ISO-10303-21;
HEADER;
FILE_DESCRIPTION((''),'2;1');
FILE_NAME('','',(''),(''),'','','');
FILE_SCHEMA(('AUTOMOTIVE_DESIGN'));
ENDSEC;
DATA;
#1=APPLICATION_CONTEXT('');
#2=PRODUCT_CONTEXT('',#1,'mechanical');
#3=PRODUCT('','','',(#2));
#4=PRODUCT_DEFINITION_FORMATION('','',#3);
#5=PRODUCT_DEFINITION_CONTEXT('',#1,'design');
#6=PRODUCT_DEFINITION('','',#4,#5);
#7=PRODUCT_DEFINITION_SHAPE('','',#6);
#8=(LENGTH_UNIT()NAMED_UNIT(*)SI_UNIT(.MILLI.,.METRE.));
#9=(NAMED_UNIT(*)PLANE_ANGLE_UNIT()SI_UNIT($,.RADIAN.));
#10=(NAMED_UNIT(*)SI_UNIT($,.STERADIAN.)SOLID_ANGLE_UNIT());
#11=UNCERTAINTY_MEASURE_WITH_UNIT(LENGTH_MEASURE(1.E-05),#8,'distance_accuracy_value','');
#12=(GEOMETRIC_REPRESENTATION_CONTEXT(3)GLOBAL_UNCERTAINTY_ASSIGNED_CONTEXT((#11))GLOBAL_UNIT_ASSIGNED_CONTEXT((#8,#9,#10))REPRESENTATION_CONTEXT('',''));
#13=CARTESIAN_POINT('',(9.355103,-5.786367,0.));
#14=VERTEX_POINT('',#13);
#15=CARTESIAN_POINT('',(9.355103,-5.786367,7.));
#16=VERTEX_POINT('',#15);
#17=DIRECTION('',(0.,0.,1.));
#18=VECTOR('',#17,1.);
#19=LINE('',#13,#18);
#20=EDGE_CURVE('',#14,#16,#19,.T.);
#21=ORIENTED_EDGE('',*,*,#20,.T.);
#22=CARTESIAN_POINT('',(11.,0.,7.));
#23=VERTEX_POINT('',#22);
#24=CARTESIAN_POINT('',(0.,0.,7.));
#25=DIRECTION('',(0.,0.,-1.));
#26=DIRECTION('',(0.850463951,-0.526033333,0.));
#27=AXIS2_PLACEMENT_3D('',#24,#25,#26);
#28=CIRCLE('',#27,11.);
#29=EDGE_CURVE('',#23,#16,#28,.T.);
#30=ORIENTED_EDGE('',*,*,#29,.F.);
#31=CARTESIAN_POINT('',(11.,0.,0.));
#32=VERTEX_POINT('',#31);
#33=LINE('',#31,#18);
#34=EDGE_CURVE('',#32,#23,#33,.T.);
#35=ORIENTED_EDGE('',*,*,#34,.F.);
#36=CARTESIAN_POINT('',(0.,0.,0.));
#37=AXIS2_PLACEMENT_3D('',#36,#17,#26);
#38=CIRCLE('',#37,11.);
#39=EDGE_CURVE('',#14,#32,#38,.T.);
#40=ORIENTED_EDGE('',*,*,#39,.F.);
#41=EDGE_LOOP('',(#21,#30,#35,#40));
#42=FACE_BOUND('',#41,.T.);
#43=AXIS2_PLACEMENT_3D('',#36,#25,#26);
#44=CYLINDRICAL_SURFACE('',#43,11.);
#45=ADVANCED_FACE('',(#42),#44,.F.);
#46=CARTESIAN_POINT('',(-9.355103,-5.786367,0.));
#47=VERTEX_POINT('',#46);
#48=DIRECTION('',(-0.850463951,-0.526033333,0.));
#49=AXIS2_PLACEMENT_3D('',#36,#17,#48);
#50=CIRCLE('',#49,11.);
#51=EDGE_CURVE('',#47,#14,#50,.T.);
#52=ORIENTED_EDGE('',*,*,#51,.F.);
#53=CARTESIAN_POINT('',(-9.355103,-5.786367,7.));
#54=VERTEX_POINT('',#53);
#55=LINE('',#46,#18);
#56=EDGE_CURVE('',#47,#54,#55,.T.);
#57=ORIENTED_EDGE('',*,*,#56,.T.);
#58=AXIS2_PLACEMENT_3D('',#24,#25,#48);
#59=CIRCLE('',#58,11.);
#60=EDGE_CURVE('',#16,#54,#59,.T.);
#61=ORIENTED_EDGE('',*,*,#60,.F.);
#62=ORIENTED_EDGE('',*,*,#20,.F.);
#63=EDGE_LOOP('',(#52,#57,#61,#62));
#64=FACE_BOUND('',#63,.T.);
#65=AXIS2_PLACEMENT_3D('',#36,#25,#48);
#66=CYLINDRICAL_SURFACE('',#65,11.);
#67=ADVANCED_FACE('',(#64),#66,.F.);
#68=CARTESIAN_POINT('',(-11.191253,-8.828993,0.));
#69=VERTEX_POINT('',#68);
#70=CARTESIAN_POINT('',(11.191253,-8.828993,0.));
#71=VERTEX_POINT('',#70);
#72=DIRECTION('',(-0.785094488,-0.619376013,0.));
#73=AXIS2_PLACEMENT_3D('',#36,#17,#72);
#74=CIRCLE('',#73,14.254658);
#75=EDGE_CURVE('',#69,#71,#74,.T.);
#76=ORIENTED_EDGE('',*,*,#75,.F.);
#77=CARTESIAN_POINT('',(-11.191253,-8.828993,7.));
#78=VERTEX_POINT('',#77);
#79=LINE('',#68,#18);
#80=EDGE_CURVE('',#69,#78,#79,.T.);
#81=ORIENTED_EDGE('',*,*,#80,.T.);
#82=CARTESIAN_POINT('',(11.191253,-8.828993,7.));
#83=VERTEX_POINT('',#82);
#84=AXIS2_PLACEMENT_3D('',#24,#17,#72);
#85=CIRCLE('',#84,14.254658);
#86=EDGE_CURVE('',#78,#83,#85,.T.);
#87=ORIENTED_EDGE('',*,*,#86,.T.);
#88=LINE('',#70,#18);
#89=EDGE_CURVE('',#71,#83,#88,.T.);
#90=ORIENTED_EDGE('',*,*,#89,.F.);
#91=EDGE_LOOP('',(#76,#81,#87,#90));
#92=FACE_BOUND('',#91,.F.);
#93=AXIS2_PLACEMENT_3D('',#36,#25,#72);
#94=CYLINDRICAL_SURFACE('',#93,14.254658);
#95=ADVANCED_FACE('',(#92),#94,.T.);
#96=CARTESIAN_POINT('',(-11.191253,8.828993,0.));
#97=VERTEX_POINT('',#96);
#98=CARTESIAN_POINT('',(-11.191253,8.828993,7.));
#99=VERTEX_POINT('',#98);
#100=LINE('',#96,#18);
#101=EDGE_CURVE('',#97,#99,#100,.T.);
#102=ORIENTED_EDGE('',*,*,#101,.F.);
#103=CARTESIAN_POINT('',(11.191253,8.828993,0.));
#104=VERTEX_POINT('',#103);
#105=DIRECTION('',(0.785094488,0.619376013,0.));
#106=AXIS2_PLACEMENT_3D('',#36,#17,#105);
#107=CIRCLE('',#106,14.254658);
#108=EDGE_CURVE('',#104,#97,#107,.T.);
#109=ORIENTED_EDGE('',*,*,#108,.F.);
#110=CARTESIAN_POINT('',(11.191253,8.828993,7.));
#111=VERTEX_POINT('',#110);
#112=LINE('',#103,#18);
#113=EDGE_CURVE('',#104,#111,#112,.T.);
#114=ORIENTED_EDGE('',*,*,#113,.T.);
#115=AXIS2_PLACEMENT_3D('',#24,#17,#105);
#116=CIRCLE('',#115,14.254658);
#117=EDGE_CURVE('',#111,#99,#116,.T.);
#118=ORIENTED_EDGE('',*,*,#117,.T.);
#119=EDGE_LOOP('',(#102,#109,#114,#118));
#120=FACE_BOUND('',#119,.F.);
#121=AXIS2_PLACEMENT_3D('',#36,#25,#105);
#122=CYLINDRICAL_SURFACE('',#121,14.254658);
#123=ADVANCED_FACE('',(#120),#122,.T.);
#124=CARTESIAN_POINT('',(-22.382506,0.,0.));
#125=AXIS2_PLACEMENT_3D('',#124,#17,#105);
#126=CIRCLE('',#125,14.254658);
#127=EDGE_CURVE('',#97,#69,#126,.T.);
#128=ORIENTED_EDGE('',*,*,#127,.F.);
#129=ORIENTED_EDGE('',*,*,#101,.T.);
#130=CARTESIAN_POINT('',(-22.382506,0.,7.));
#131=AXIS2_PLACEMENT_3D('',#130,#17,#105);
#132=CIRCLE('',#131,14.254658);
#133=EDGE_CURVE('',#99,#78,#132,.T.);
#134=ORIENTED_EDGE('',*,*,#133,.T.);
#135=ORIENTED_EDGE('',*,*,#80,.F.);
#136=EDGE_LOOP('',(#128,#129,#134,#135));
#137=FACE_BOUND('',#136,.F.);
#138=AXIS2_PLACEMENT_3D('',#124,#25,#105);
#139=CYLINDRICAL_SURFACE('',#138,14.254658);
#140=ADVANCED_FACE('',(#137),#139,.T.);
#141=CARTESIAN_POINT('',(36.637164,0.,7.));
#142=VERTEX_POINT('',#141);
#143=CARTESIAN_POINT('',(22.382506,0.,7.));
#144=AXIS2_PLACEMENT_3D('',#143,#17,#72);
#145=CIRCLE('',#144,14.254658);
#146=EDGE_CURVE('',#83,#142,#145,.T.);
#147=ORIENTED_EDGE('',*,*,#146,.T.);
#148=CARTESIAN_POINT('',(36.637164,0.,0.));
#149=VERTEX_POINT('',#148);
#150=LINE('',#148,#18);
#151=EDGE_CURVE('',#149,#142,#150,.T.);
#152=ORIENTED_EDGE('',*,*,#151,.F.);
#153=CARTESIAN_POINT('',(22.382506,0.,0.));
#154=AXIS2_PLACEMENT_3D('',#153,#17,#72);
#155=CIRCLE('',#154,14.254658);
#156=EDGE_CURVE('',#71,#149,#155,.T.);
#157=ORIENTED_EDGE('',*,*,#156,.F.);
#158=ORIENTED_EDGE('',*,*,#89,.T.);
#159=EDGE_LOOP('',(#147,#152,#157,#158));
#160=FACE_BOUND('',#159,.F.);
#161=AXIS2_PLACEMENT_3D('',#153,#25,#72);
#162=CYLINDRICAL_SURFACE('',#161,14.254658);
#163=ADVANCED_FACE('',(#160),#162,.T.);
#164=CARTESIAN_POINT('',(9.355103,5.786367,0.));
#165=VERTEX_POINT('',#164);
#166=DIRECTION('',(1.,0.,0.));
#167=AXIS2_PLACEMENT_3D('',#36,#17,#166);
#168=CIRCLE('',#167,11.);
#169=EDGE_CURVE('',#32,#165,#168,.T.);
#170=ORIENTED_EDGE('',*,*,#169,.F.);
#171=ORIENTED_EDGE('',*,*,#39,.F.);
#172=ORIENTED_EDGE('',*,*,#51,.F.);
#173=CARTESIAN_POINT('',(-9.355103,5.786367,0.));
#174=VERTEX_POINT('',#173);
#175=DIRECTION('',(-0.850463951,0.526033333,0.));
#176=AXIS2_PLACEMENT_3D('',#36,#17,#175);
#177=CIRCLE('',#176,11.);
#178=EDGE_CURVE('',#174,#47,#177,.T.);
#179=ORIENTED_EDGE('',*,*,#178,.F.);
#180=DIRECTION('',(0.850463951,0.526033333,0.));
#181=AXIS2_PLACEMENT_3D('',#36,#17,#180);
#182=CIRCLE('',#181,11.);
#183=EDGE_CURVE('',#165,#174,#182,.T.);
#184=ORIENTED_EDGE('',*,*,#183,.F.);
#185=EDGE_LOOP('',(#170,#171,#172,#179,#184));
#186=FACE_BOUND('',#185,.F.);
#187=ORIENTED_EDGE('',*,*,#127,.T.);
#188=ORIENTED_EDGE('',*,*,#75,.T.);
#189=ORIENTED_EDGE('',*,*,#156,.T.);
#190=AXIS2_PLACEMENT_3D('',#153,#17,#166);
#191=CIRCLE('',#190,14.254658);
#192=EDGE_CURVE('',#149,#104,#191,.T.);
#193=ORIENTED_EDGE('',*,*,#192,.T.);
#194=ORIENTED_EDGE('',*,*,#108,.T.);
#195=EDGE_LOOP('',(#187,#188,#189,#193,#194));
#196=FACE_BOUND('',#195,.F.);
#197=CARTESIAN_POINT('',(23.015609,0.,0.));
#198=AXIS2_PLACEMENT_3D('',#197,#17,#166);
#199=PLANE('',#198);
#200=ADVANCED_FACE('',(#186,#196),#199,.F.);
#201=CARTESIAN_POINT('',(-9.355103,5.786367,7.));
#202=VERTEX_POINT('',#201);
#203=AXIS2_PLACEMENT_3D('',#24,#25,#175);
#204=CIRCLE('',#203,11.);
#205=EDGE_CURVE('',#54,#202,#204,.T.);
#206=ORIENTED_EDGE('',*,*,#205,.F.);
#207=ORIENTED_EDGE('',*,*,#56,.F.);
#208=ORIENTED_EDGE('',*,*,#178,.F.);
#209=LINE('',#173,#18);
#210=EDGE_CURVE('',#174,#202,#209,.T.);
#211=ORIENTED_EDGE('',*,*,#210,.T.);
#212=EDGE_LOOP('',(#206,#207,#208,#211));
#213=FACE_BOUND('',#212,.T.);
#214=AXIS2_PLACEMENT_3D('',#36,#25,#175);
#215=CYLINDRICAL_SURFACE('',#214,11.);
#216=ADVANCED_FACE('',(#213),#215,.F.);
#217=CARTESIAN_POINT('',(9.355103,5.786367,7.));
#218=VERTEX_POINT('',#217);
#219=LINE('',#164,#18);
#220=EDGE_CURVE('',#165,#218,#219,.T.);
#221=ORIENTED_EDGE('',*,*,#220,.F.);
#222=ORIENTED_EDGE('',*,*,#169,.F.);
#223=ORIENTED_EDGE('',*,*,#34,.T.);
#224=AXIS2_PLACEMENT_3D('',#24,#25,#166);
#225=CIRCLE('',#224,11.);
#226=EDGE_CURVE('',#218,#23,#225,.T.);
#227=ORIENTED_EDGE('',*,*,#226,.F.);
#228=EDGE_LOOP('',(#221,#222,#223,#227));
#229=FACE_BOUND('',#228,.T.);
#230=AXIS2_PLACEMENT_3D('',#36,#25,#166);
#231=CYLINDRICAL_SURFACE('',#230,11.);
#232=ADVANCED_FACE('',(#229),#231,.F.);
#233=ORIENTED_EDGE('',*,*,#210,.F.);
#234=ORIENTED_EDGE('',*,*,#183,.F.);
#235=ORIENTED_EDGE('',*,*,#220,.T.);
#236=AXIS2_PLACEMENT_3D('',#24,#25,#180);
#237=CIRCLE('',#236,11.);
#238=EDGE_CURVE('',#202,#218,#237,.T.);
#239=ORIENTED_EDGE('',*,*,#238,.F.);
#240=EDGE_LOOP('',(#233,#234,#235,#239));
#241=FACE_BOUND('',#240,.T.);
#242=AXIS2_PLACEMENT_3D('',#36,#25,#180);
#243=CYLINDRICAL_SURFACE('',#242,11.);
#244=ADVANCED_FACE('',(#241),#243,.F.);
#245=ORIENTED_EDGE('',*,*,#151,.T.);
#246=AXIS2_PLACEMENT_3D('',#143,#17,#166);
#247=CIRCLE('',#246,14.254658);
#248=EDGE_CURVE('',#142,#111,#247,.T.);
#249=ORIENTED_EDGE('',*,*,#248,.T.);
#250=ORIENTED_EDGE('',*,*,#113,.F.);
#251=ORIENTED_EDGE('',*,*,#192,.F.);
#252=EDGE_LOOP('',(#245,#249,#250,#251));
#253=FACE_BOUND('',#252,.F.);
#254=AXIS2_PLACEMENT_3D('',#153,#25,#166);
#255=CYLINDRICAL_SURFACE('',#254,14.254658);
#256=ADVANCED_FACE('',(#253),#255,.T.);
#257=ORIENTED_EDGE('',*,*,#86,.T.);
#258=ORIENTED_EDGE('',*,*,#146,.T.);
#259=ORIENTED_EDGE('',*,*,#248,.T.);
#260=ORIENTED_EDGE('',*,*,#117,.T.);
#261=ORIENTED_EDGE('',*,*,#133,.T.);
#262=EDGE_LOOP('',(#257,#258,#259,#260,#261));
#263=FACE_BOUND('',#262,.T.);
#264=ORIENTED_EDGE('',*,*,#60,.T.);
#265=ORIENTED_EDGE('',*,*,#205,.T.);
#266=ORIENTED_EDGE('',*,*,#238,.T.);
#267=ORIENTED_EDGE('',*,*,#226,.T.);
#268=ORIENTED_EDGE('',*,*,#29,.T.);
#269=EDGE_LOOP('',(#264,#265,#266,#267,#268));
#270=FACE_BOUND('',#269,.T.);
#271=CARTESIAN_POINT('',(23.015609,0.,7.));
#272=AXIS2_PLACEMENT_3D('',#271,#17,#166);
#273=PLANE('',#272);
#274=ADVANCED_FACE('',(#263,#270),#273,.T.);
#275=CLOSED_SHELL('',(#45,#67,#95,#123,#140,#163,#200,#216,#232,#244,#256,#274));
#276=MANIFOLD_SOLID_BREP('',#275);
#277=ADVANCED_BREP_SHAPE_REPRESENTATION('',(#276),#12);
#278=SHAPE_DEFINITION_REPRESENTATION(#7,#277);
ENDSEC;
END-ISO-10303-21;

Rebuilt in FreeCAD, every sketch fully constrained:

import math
import FreeCAD as App
import Part
import Sketcher
Q = App.Units.Quantity

doc = App.newDocument("Part")
body = doc.addObject("PartDesign::Body", "Body")

sketch1 = body.newObject("Sketcher::SketchObject", "Sketch")
sketch1.AttachmentSupport = (doc.getObject("XY_Plane"), [""])
sketch1.MapMode = "FlatFace"
sketch1.addGeometry([
    Part.ArcOfCircle(Part.Circle(App.Vector(22, 0, 0), App.Vector(0, 0, 1), 14), math.radians(-142), math.radians(0)),
    Part.ArcOfCircle(Part.Circle(App.Vector(22, 0, 0), App.Vector(0, 0, 1), 14), math.radians(0), math.radians(142)),
    Part.ArcOfCircle(Part.Circle(App.Vector(0, 0, 0), App.Vector(0, 0, 1), 14), math.radians(38), math.radians(142)),
    Part.ArcOfCircle(Part.Circle(App.Vector(-22, 0, 0), App.Vector(0, 0, 1), 14), math.radians(38), math.radians(322)),
    Part.ArcOfCircle(Part.Circle(App.Vector(0, 0, 0), App.Vector(0, 0, 1), 14), math.radians(-142), math.radians(-38)),
], False)
sketch1.addConstraint([
    Sketcher.Constraint("Tangent", 0, 2, 1, 1),
    Sketcher.Constraint("Coincident", 1, 2, 2, 1),
    Sketcher.Constraint("Coincident", 2, 2, 3, 1),
    Sketcher.Constraint("Coincident", 3, 2, 4, 1),
    Sketcher.Constraint("Coincident", 4, 2, 0, 1),
    Sketcher.Constraint("Coincident", 2, 3, -1, 1),
    Sketcher.Constraint("Coincident", 4, 3, -1, 1),
    Sketcher.Constraint("Equal", 0, 1),
    Sketcher.Constraint("Equal", 1, 2),
    Sketcher.Constraint("Equal", 2, 3),
    Sketcher.Constraint("Equal", 3, 4),
    Sketcher.Constraint("Symmetric", 0, 3, 3, 3, -1, 1),
    Sketcher.Constraint("PointOnObject", 0, 3, -1),
    Sketcher.Constraint("PointOnObject", 0, 2, -1),
    Sketcher.Constraint("Radius", 0, Q("14.254658 mm")),
    Sketcher.Constraint("DistanceX", 3, 3, 0, 2, Q("59.019671 mm")),
])
pad1 = body.newObject("PartDesign::Pad", "Pad")
pad1.Profile = sketch1
pad1.Length = 7

sketch2 = body.newObject("Sketcher::SketchObject", "Sketch001")
sketch2.AttachmentSupport = (doc.getObject("XY_Plane"), [""])
sketch2.MapMode = "FlatFace"
sketch2.addGeometry([
    Part.ArcOfCircle(Part.Circle(App.Vector(0, 0, 0), App.Vector(0, 0, 1), 11), math.radians(32), math.radians(148)),
    Part.ArcOfCircle(Part.Circle(App.Vector(0, 0, 0), App.Vector(0, 0, 1), 11), math.radians(148), math.radians(212)),
    Part.ArcOfCircle(Part.Circle(App.Vector(0, 0, 0), App.Vector(0, 0, 1), 11), math.radians(-148), math.radians(-32)),
    Part.ArcOfCircle(Part.Circle(App.Vector(0, 0, 0), App.Vector(0, 0, 1), 11), math.radians(-32), math.radians(0)),
    Part.ArcOfCircle(Part.Circle(App.Vector(0, 0, 0), App.Vector(0, 0, 1), 11), math.radians(0), math.radians(32)),
], False)
sketch2.addConstraint([
    Sketcher.Constraint("Tangent", 0, 2, 1, 1),
    Sketcher.Constraint("Tangent", 1, 2, 2, 1),
    Sketcher.Constraint("Tangent", 2, 2, 3, 1),
    Sketcher.Constraint("Tangent", 3, 2, 4, 1),
    Sketcher.Constraint("Tangent", 4, 2, 0, 1),
    Sketcher.Constraint("Coincident", 0, 3, -1, 1),
    Sketcher.Constraint("Coincident", 2, 3, -1, 1),
    Sketcher.Constraint("PointOnObject", 3, 2, -1),
    Sketcher.Constraint("Horizontal", 1, 2, 2, 2),
    Sketcher.Constraint("Horizontal", 0, 2, 4, 2),
    Sketcher.Constraint("Vertical", 0, 2, 1, 2),
    Sketcher.Constraint("Radius", 0, Q("11 mm")),
    Sketcher.Constraint("DistanceX", 0, 2, -1, 1, Q("9.355103 mm")),
])
pocket1 = body.newObject("PartDesign::Pocket", "Pocket")
pocket1.Profile = sketch2
pocket1.Length = 25
pocket1.Reversed = True

doc.recompute()
